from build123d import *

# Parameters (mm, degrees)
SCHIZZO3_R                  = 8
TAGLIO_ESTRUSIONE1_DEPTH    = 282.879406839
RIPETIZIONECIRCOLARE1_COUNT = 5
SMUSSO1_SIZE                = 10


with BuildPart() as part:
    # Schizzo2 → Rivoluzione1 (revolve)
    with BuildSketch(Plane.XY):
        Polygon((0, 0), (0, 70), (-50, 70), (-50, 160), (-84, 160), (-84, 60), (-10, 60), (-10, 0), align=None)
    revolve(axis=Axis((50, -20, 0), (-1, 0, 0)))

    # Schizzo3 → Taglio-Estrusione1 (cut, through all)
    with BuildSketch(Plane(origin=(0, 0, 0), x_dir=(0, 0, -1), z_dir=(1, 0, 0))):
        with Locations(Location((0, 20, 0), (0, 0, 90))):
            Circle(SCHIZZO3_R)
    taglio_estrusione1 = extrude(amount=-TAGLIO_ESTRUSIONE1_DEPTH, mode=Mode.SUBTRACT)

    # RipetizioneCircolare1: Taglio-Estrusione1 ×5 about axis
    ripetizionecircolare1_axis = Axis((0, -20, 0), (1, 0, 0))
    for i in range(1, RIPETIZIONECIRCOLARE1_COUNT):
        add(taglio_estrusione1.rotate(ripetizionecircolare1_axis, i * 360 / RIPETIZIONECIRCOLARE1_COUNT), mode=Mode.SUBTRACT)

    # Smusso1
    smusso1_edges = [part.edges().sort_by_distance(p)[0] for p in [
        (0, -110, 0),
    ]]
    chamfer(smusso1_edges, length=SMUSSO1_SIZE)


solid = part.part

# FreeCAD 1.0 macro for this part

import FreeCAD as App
import Part
import Sketcher

V = App.Vector
Q = App.Units.Quantity


def edges_at(feature, points):
    """Names of the edges that pass closest to the given points."""
    edges = feature.Shape.Edges
    near = lambda p: min(range(len(edges)), key=lambda i: edges[i].distToShape(Part.Vertex(*p))[0])
    return sorted({f"Edge{near(p) + 1}" for p in points})

doc = App.newDocument("Part")
body = doc.addObject("PartDesign::Body", "Body")

sketch1 = body.newObject("Sketcher::SketchObject", "Sketch")
sketch1.AttachmentSupport = (doc.getObject("XY_Plane"), [""])
sketch1.MapMode = "FlatFace"
sketch1.addGeometry([
    Part.LineSegment(V(0, 0, 0), V(0, 70, 0)),
    Part.LineSegment(V(0, 70, 0), V(-50, 70, 0)),
    Part.LineSegment(V(-50, 70, 0), V(-50, 160, 0)),
    Part.LineSegment(V(-50, 160, 0), V(-84, 160, 0)),
    Part.LineSegment(V(-84, 160, 0), V(-84, 60, 0)),
    Part.LineSegment(V(-84, 60, 0), V(-10, 60, 0)),
    Part.LineSegment(V(-10, 60, 0), V(-10, 0, 0)),
    Part.LineSegment(V(-10, 0, 0), V(0, 0, 0)),
], False)
sketch1.addGeometry(Part.LineSegment(V(0, -20, 0), V(-84, -20, 0)), True)
sketch1.addConstraint([
    Sketcher.Constraint("Coincident", 0, 2, 1, 1),
    Sketcher.Constraint("Coincident", 1, 2, 2, 1),
    Sketcher.Constraint("Coincident", 2, 2, 3, 1),
    Sketcher.Constraint("Coincident", 3, 2, 4, 1),
    Sketcher.Constraint("Coincident", 4, 2, 5, 1),
    Sketcher.Constraint("Coincident", 5, 2, 6, 1),
    Sketcher.Constraint("Coincident", 6, 2, 7, 1),
    Sketcher.Constraint("Coincident", 7, 2, 0, 1),
    Sketcher.Constraint("Vertical", 0),
    Sketcher.Constraint("Horizontal", 1),
    Sketcher.Constraint("Vertical", 2),
    Sketcher.Constraint("Horizontal", 3),
    Sketcher.Constraint("Vertical", 4),
    Sketcher.Constraint("Horizontal", 5),
    Sketcher.Constraint("Vertical", 6),
    Sketcher.Constraint("Horizontal", 7),
    Sketcher.Constraint("Horizontal", 8),
    Sketcher.Constraint("Coincident", 7, 2, -1, 1),
    Sketcher.Constraint("PointOnObject", 8, 1, -2),
    Sketcher.Constraint("Vertical", 4, 2, 8, 2),
    Sketcher.Constraint("DistanceX", 1, 2, 1, 1, Q("50 mm")),
    Sketcher.Constraint("DistanceX", 3, 2, 3, 1, Q("34 mm")),
    Sketcher.Constraint("DistanceX", 5, 1, 5, 2, Q("74 mm")),
    Sketcher.Constraint("DistanceY", 0, 1, 0, 2, Q("70 mm")),
    Sketcher.Constraint("DistanceY", 2, 1, 2, 2, Q("90 mm")),
    Sketcher.Constraint("DistanceY", 4, 2, 4, 1, Q("100 mm")),
    Sketcher.Constraint("DistanceY", 8, 1, -1, 1, Q("20 mm")),
])
revolution = body.newObject("PartDesign::Revolution", "Revolution")
revolution.Profile = sketch1
revolution.ReferenceAxis = (sketch1, ["Axis0"])
revolution.Angle = 360

sketch2 = body.newObject("Sketcher::SketchObject", "Sketch001")
sketch2.AttachmentSupport = (doc.getObject("YZ_Plane"), [""])
sketch2.MapMode = "FlatFace"
sketch2.addGeometry(Part.Circle(V(20, 0, 0), V(0, 0, 1), 8), False)
sketch2.addConstraint([
    Sketcher.Constraint("PointOnObject", 0, 3, -1),
    Sketcher.Constraint("Diameter", 0, Q("16 mm")),
    Sketcher.Constraint("DistanceX", -1, 1, 0, 3, Q("20 mm")),
])
pocket1 = body.newObject("PartDesign::Pocket", "Pocket")
pocket1.Profile = sketch2
pocket1.Type = "ThroughAll"
doc.recompute()

datumline = body.newObject("PartDesign::Line", "DatumLine")
datumline.Placement = App.Placement(V(0, -20, 0), App.Rotation(V(0, 0, 1), V(1, 0, 0)))
polarpattern = body.newObject("PartDesign::PolarPattern", "PolarPattern")
polarpattern.Originals = [pocket1]
polarpattern.Axis = (datumline, [""])
polarpattern.Angle = 360
polarpattern.Occurrences = 5
body.Tip = polarpattern
doc.recompute()

chamfer = body.newObject("PartDesign::Chamfer", "Chamfer")
chamfer.Base = (polarpattern, edges_at(polarpattern, [(0, -110, 0)]))
chamfer.Size = 10

doc.recompute()
